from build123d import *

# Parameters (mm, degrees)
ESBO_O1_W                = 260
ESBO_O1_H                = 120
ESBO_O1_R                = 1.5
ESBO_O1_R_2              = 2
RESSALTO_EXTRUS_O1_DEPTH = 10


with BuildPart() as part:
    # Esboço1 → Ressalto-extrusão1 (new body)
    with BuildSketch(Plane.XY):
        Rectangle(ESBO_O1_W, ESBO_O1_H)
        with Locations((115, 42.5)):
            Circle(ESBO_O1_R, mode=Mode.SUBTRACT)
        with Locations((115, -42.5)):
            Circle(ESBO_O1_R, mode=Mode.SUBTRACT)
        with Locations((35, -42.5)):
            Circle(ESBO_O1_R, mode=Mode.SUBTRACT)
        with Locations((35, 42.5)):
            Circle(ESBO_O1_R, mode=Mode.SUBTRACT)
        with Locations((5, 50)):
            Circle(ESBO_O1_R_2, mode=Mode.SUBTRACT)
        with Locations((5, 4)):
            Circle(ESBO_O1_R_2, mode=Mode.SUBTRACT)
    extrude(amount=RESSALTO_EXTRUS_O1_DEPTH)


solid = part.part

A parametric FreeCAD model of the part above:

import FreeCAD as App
import Part
import Sketcher
from FreeCAD import Vector
Q = App.Units.Quantity


def add_polygon(sketch, points):
    """Adds a closed chain of lines whose ends are joined by coincident constraints."""
    first, n = sketch.GeometryCount, len(points)
    for a, b in zip(points, points[1:] + points[:1]):
        sketch.addGeometry(Part.LineSegment(App.Vector(*a, 0), App.Vector(*b, 0)), False)
    for i in range(n):
        sketch.addConstraint(Sketcher.Constraint("Coincident", first + i, 2, first + (i + 1) % n, 1))

doc = App.newDocument("Part")
body = doc.addObject("PartDesign::Body", "Body")

# Sketch on XY plane
sketch1 = body.newObject("Sketcher::SketchObject", "Sketch")
sketch1.AttachmentSupport = (doc.getObject("XY_Plane"), [""])
sketch1.MapMode = "FlatFace"
add_polygon(sketch1, [(-130, 60), (-130, -60), (130, -60), (130, 60)])  # lines 0-3
sketch1.addGeometry(Part.Circle(Vector(35, -42.5, 0), Vector(0, 0, 1), 1.5), False)  # 4
sketch1.addGeometry(Part.Circle(Vector(115, -42.5, 0), Vector(0, 0, 1), 1.5), False)  # 5
sketch1.addGeometry(Part.Circle(Vector(5, 4, 0), Vector(0, 0, 1), 2), False)  # 6
sketch1.addGeometry(Part.Circle(Vector(5, 50, 0), Vector(0, 0, 1), 2), False)  # 7
sketch1.addGeometry(Part.Circle(Vector(35, 42.5, 0), Vector(0, 0, 1), 1.5), False)  # 8
sketch1.addGeometry(Part.Circle(Vector(115, 42.5, 0), Vector(0, 0, 1), 1.5), False)  # 9
sketch1.addConstraint(Sketcher.Constraint("Vertical", 0))
sketch1.addConstraint(Sketcher.Constraint("Horizontal", 1))
sketch1.addConstraint(Sketcher.Constraint("Vertical", 2))
sketch1.addConstraint(Sketcher.Constraint("Horizontal", 3))
sketch1.addConstraint(Sketcher.Constraint("Equal", 4, 5))
sketch1.addConstraint(Sketcher.Constraint("Equal", 6, 7))
sketch1.addConstraint(Sketcher.Constraint("Equal", 5, 8))
sketch1.addConstraint(Sketcher.Constraint("Equal", 8, 9))
sketch1.addConstraint(Sketcher.Constraint("Symmetric", 0, 2, 2, 2, -1, 1))
sketch1.addConstraint(Sketcher.Constraint("Symmetric", 4, 3, 8, 3, -1))
sketch1.addConstraint(Sketcher.Constraint("Symmetric", 5, 3, 9, 3, -1))
sketch1.addConstraint(Sketcher.Constraint("Horizontal", 4, 3, 5, 3))
sketch1.addConstraint(Sketcher.Constraint("Vertical", 6, 3, 7, 3))
sketch1.addConstraint(Sketcher.Constraint("Diameter", 4, Q("3 mm")))
sketch1.addConstraint(Sketcher.Constraint("Diameter", 6, Q("4 mm")))
sketch1.addConstraint(Sketcher.Constraint("DistanceX", 1, 1, 1, 2, Q("260 mm")))
sketch1.addConstraint(Sketcher.Constraint("DistanceY", 0, 2, 0, 1, Q("120 mm")))
sketch1.addConstraint(Sketcher.Constraint("DistanceX", -1, 1, 4, 3, Q("35 mm")))
sketch1.addConstraint(Sketcher.Constraint("DistanceX", -1, 1, 5, 3, Q("115 mm")))
sketch1.addConstraint(Sketcher.Constraint("DistanceX", -1, 1, 6, 3, Q("5 mm")))
sketch1.addConstraint(Sketcher.Constraint("DistanceY", -1, 1, 6, 3, Q("4 mm")))
sketch1.addConstraint(Sketcher.Constraint("DistanceY", -1, 1, 7, 3, Q("50 mm")))
sketch1.addConstraint(Sketcher.Constraint("DistanceY", 4, 3, 8, 3, Q("85 mm")))
pad1 = body.newObject("PartDesign::Pad", "Pad")
pad1.Profile = sketch1
pad1.Length = 10

doc.recompute()
